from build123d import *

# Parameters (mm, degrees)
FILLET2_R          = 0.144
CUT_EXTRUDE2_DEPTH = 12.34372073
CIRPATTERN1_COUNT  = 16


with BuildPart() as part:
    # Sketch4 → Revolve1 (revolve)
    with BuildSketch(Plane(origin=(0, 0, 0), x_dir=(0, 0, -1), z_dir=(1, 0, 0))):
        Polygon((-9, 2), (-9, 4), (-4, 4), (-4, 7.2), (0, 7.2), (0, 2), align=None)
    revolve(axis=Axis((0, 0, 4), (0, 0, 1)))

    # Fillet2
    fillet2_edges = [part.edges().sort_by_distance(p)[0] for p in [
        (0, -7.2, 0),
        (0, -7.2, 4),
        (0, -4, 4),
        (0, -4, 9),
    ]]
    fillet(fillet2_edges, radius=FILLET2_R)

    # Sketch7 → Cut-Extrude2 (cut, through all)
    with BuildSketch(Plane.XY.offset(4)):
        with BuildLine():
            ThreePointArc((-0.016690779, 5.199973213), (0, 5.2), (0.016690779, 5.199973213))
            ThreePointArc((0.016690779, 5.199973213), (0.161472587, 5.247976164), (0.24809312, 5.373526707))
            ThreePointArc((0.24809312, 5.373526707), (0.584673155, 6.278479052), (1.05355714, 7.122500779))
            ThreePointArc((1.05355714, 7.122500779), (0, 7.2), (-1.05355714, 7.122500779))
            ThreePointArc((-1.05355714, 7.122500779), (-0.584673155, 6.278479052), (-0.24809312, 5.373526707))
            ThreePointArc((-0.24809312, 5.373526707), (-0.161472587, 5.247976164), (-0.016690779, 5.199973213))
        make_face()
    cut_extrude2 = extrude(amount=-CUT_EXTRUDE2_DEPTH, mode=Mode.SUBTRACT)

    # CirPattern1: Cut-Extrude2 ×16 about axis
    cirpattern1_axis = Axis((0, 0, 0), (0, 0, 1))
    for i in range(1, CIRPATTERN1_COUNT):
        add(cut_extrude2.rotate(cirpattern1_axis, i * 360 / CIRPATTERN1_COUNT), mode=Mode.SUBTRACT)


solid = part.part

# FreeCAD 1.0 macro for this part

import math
import FreeCAD as App
import Part
import Sketcher
Q = App.Units.Quantity


def edges_at(feature, points):
    """Names of the edges that pass closest to the given points."""
    edges = feature.Shape.Edges
    near = lambda p: min(range(len(edges)), key=lambda i: edges[i].distToShape(Part.Vertex(*p))[0])
    return sorted({f"Edge{near(p) + 1}" for p in points})


def add_polygon(sketch, points):
    """Adds a closed chain of lines whose ends are joined by coincident constraints."""
    first, n = sketch.GeometryCount, len(points)
    for a, b in zip(points, points[1:] + points[:1]):
        sketch.addGeometry(Part.LineSegment(App.Vector(*a, 0), App.Vector(*b, 0)), False)
    for i in range(n):
        sketch.addConstraint(Sketcher.Constraint("Coincident", first + i, 2, first + (i + 1) % n, 1))

doc = App.newDocument("Part")
body = doc.addObject("PartDesign::Body", "Body")

# Sketch on YZ plane
sketch1 = doc.addObject("Sketcher::SketchObject", "Sketch")
body.addObject(sketch1)
sketch1.AttachmentSupport = (doc.YZ_Plane, [""])
sketch1.MapMode = "FlatFace"
add_polygon(sketch1, [(4, 9), (2, 9), (2, 0), (7.2, 0), (7.2, 4), (4, 4)])  # lines 0-5
sketch1.addConstraint(Sketcher.Constraint("Horizontal", 0))
sketch1.addConstraint(Sketcher.Constraint("Vertical", 1))
sketch1.addConstraint(Sketcher.Constraint("Horizontal", 2))
sketch1.addConstraint(Sketcher.Constraint("Vertical", 3))
sketch1.addConstraint(Sketcher.Constraint("Horizontal", 4))
sketch1.addConstraint(Sketcher.Constraint("Vertical", 5))
sketch1.addConstraint(Sketcher.Constraint("PointOnObject", 1, 2, -1))
sketch1.addConstraint(Sketcher.Constraint("DistanceX", 0, 2, 0, 1, Q("2 mm")))
sketch1.addConstraint(Sketcher.Constraint("DistanceY", 1, 2, 1, 1, Q("9 mm")))
sketch1.addConstraint(Sketcher.Constraint("DistanceY", 3, 1, 3, 2, Q("4 mm")))
sketch1.addConstraint(Sketcher.Constraint("DistanceX", 2, 1, 2, 2, Q("5.2 mm")))
sketch1.addConstraint(Sketcher.Constraint("DistanceX", -1, 1, 0, 2, Q("2 mm")))
revolution = doc.addObject("PartDesign::Revolution", "Revolution")
body.addObject(revolution)
revolution.Profile = sketch1
revolution.ReferenceAxis = (sketch1, ["V_Axis"])
revolution.Angle = 360
doc.recompute()

fillet = doc.addObject("PartDesign::Fillet", "Fillet")
body.addObject(fillet)
fillet.Base = (revolution, edges_at(revolution, [
    (0, -7.2, 0),
    (0, -7.2, 4),
    (0, -4, 4),
    (0, -4, 9),
]))
fillet.Radius = 0.144

# Sketch on XY plane
sketch2 = doc.addObject("Sketcher::SketchObject", "Sketch001")
body.addObject(sketch2)
sketch2.AttachmentSupport = (doc.XY_Plane, [""])
sketch2.MapMode = "FlatFace"
sketch2.AttachmentOffset = App.Placement(App.Vector(0, 0, 4), App.Rotation())
sketch2.addGeometry(Part.ArcOfCircle(Part.Circle(App.Vector(0, 0, 0), App.Vector(0, 0, 1), 5.2), math.radians(89.82), math.radians(90.18)), False)
sketch2.addGeometry(Part.ArcOfCircle(Part.Circle(App.Vector(0.017, 5.44, 0), App.Vector(0, 0, 1), 0.24), math.radians(-90), math.radians(-16)), False)
sketch2.addGeometry(Part.ArcOfCircle(Part.Circle(App.Vector(6.398, 3.601, 0), App.Vector(0, 0, 1), 6.4), math.radians(146.62), math.radians(163.92)), False)
sketch2.addGeometry(Part.ArcOfCircle(Part.Circle(App.Vector(0, 0, 0), App.Vector(0, 0, 1), 7.2), math.radians(81.59), math.radians(98.41)), False)
sketch2.addGeometry(Part.ArcOfCircle(Part.Circle(App.Vector(-6.398, 3.601, 0), App.Vector(0, 0, 1), 6.4), math.radians(16.08), math.radians(33.38)), False)
sketch2.addGeometry(Part.ArcOfCircle(Part.Circle(App.Vector(-0.017, 5.44, 0), App.Vector(0, 0, 1), 0.24), math.radians(-164), math.radians(-90)), False)
sketch2.addConstraint(Sketcher.Constraint("Tangent", 0, 1, 1, 1))
sketch2.addConstraint(Sketcher.Constraint("Tangent", 1, 2, 2, 2))
sketch2.addConstraint(Sketcher.Constraint("Coincident", 2, 1, 3, 1))
sketch2.addConstraint(Sketcher.Constraint("Coincident", 3, 2, 4, 2))
sketch2.addConstraint(Sketcher.Constraint("Tangent", 4, 1, 5, 1))
sketch2.addConstraint(Sketcher.Constraint("Tangent", 5, 2, 0, 2))
sketch2.addConstraint(Sketcher.Constraint("Coincident", 3, 3, -1, 1))
sketch2.addConstraint(Sketcher.Constraint("Equal", 2, 4))
sketch2.addConstraint(Sketcher.Constraint("Equal", 1, 5))
sketch2.addConstraint(Sketcher.Constraint("Symmetric", 2, 3, 4, 3, -2))
sketch2.addConstraint(Sketcher.Constraint("PointOnObject", 0, 3, -2))
sketch2.addConstraint(Sketcher.Constraint("Radius", 2, Q("6.4 mm")))
sketch2.addConstraint(Sketcher.Constraint("Radius", 3, Q("7.2 mm")))
sketch2.addConstraint(Sketcher.Constraint("Radius", 0, Q("5.199963 mm")))
sketch2.addConstraint(Sketcher.Constraint("Radius", 1, Q("0.240017 mm")))
sketch2.addConstraint(Sketcher.Constraint("DistanceY", -1, 1, 2, 1, Q("7.122501 mm")))
sketch2.addConstraint(Sketcher.Constraint("DistanceX", -1, 1, 1, 3, Q("0.017461 mm")))
sketch2.addConstraint(Sketcher.Constraint("DistanceY", -1, 1, 1, 3, Q("5.439989 mm")))
pocket1 = doc.addObject("PartDesign::Pocket", "Pocket")
body.addObject(pocket1)
pocket1.Profile = sketch2
pocket1.Type = "ThroughAll"
doc.recompute()

polarpattern = doc.addObject("PartDesign::PolarPattern", "PolarPattern")
body.addObject(polarpattern)
polarpattern.Originals = [pocket1]
polarpattern.Axis = (doc.Z_Axis, [""])
polarpattern.Angle = 360
polarpattern.Occurrences = 16
body.Tip = polarpattern

doc.recompute()
